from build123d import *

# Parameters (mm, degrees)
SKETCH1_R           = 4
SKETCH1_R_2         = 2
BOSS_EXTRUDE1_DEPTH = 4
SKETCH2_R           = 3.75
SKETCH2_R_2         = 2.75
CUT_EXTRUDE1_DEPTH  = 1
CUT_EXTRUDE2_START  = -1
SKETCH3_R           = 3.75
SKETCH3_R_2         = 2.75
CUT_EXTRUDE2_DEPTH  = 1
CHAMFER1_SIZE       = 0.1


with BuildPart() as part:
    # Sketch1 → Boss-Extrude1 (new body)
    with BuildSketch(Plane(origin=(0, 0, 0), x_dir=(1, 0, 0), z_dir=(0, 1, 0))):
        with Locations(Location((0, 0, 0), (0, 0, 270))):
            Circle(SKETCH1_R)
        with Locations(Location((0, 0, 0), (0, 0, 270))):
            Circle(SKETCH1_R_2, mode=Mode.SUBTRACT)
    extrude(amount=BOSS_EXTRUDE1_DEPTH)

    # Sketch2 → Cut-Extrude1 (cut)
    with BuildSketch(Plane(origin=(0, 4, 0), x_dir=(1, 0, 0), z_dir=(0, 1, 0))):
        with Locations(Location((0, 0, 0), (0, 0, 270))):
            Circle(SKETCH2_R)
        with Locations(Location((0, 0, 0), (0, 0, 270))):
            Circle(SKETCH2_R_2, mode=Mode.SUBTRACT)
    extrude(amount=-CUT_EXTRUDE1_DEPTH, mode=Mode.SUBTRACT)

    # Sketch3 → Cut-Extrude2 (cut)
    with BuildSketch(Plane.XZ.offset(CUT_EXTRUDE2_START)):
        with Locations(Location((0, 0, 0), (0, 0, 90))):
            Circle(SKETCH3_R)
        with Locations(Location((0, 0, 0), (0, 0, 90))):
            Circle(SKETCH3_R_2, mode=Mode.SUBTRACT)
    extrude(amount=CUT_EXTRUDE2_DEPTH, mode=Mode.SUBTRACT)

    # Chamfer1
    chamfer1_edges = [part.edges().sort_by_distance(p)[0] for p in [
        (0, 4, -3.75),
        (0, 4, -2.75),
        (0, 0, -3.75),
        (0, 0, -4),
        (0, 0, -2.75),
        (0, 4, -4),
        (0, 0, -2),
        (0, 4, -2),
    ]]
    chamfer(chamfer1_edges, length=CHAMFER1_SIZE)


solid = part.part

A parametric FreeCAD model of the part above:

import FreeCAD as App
import Part
import Sketcher
from FreeCAD import Vector


def edges_at(feature, points):
    """Names of the edges that pass closest to the given points."""
    edges = feature.Shape.Edges
    near = lambda p: min(range(len(edges)), key=lambda i: edges[i].distToShape(Part.Vertex(*p))[0])
    return sorted({f"Edge{near(p) + 1}" for p in points})

doc = App.newDocument("Part")
params = doc.addObject("Spreadsheet::Sheet", "Params")
for row, (alias, value) in enumerate([
    ("sketch1_diameter", "8 mm"),
    ("sketch1_diameter2", "4 mm"),
    ("pad1_length", "4 mm"),
    ("sketch2_diameter", "7.5 mm"),
    ("sketch2_diameter2", "5.5 mm"),
    ("pocket1_length", "1 mm"),
    ("sketch3_diameter", "7.5 mm"),
    ("sketch3_diameter2", "5.5 mm"),
    ("pocket2_length", "1 mm"),
    ("chamfer_size", "0.1 mm"),
], start=1):
    params.set(f"A{row}", alias)
    params.set(f"B{row}", "=" + value)
    params.setAlias(f"B{row}", alias)

body = doc.addObject("PartDesign::Body", "Body")

sketch1 = body.newObject("Sketcher::SketchObject", "Sketch")
sketch1.AttachmentSupport = (doc.getObject("XZ_Plane"), [""])
sketch1.MapMode = "FlatFace"
sketch1.addGeometry([
    Part.Circle(Vector(0, 0, 0), Vector(0, 0, 1), 4),
    Part.Circle(Vector(0, 0, 0), Vector(0, 0, 1), 2),
], False)
sketch1.addConstraint([
    Sketcher.Constraint("Coincident", 0, 3, -1, 1),
    Sketcher.Constraint("Coincident", 1, 3, -1, 1),
    Sketcher.Constraint("Diameter", 0, 8.0),
    Sketcher.Constraint("Diameter", 1, 4.0),
])
sketch1.setExpression("Constraints[2]", "Params.sketch1_diameter")
sketch1.setExpression("Constraints[3]", "Params.sketch1_diameter2")
pad1 = body.newObject("PartDesign::Pad", "Pad")
pad1.Profile = sketch1
pad1.setExpression("Length", "Params.pad1_length")
pad1.Reversed = True

sketch2 = body.newObject("Sketcher::SketchObject", "Sketch001")
sketch2.AttachmentSupport = (doc.getObject("XZ_Plane"), [""])
sketch2.MapMode = "FlatFace"
sketch2.AttachmentOffset = App.Placement(Vector(0, 0, -4), App.Rotation())
sketch2.addGeometry([
    Part.Circle(Vector(0, 0, 0), Vector(0, 0, 1), 3.75),
    Part.Circle(Vector(0, 0, 0), Vector(0, 0, 1), 2.75),
], False)
sketch2.addConstraint([
    Sketcher.Constraint("Coincident", 0, 3, -1, 1),
    Sketcher.Constraint("Coincident", 1, 3, -1, 1),
    Sketcher.Constraint("Diameter", 0, 7.5),
    Sketcher.Constraint("Diameter", 1, 5.5),
])
sketch2.setExpression("Constraints[2]", "Params.sketch2_diameter")
sketch2.setExpression("Constraints[3]", "Params.sketch2_diameter2")
pocket1 = body.newObject("PartDesign::Pocket", "Pocket")
pocket1.Profile = sketch2
pocket1.setExpression("Length", "Params.pocket1_length")
pocket1.Reversed = True

sketch3 = body.newObject("Sketcher::SketchObject", "Sketch002")
sketch3.AttachmentSupport = (doc.getObject("XZ_Plane"), [""])
sketch3.MapMode = "FlatFace"
sketch3.AttachmentOffset = App.Placement(Vector(0, 0, -1), App.Rotation())
sketch3.addGeometry([
    Part.Circle(Vector(0, 0, 0), Vector(0, 0, 1), 3.75),
    Part.Circle(Vector(0, 0, 0), Vector(0, 0, 1), 2.75),
], False)
sketch3.addConstraint([
    Sketcher.Constraint("Coincident", 0, 3, -1, 1),
    Sketcher.Constraint("Coincident", 1, 3, -1, 1),
    Sketcher.Constraint("Diameter", 0, 7.5),
    Sketcher.Constraint("Diameter", 1, 5.5),
])
sketch3.setExpression("Constraints[2]", "Params.sketch3_diameter")
sketch3.setExpression("Constraints[3]", "Params.sketch3_diameter2")
pocket2 = body.newObject("PartDesign::Pocket", "Pocket001")
pocket2.Profile = sketch3
pocket2.setExpression("Length", "Params.pocket2_length")
pocket2.Reversed = True
doc.recompute()

chamfer = body.newObject("PartDesign::Chamfer", "Chamfer")
chamfer.Base = (pocket2, edges_at(pocket2, [
    (0, 4, -3.75),
    (0, 4, -2.75),
    (0, 0, -3.75),
    (0, 0, -4),
    (0, 0, -2.75),
    (0, 4, -4),
    (0, 0, -2),
    (0, 4, -2),
]))
chamfer.setExpression("Size", "Params.chamfer_size")

doc.recompute()
